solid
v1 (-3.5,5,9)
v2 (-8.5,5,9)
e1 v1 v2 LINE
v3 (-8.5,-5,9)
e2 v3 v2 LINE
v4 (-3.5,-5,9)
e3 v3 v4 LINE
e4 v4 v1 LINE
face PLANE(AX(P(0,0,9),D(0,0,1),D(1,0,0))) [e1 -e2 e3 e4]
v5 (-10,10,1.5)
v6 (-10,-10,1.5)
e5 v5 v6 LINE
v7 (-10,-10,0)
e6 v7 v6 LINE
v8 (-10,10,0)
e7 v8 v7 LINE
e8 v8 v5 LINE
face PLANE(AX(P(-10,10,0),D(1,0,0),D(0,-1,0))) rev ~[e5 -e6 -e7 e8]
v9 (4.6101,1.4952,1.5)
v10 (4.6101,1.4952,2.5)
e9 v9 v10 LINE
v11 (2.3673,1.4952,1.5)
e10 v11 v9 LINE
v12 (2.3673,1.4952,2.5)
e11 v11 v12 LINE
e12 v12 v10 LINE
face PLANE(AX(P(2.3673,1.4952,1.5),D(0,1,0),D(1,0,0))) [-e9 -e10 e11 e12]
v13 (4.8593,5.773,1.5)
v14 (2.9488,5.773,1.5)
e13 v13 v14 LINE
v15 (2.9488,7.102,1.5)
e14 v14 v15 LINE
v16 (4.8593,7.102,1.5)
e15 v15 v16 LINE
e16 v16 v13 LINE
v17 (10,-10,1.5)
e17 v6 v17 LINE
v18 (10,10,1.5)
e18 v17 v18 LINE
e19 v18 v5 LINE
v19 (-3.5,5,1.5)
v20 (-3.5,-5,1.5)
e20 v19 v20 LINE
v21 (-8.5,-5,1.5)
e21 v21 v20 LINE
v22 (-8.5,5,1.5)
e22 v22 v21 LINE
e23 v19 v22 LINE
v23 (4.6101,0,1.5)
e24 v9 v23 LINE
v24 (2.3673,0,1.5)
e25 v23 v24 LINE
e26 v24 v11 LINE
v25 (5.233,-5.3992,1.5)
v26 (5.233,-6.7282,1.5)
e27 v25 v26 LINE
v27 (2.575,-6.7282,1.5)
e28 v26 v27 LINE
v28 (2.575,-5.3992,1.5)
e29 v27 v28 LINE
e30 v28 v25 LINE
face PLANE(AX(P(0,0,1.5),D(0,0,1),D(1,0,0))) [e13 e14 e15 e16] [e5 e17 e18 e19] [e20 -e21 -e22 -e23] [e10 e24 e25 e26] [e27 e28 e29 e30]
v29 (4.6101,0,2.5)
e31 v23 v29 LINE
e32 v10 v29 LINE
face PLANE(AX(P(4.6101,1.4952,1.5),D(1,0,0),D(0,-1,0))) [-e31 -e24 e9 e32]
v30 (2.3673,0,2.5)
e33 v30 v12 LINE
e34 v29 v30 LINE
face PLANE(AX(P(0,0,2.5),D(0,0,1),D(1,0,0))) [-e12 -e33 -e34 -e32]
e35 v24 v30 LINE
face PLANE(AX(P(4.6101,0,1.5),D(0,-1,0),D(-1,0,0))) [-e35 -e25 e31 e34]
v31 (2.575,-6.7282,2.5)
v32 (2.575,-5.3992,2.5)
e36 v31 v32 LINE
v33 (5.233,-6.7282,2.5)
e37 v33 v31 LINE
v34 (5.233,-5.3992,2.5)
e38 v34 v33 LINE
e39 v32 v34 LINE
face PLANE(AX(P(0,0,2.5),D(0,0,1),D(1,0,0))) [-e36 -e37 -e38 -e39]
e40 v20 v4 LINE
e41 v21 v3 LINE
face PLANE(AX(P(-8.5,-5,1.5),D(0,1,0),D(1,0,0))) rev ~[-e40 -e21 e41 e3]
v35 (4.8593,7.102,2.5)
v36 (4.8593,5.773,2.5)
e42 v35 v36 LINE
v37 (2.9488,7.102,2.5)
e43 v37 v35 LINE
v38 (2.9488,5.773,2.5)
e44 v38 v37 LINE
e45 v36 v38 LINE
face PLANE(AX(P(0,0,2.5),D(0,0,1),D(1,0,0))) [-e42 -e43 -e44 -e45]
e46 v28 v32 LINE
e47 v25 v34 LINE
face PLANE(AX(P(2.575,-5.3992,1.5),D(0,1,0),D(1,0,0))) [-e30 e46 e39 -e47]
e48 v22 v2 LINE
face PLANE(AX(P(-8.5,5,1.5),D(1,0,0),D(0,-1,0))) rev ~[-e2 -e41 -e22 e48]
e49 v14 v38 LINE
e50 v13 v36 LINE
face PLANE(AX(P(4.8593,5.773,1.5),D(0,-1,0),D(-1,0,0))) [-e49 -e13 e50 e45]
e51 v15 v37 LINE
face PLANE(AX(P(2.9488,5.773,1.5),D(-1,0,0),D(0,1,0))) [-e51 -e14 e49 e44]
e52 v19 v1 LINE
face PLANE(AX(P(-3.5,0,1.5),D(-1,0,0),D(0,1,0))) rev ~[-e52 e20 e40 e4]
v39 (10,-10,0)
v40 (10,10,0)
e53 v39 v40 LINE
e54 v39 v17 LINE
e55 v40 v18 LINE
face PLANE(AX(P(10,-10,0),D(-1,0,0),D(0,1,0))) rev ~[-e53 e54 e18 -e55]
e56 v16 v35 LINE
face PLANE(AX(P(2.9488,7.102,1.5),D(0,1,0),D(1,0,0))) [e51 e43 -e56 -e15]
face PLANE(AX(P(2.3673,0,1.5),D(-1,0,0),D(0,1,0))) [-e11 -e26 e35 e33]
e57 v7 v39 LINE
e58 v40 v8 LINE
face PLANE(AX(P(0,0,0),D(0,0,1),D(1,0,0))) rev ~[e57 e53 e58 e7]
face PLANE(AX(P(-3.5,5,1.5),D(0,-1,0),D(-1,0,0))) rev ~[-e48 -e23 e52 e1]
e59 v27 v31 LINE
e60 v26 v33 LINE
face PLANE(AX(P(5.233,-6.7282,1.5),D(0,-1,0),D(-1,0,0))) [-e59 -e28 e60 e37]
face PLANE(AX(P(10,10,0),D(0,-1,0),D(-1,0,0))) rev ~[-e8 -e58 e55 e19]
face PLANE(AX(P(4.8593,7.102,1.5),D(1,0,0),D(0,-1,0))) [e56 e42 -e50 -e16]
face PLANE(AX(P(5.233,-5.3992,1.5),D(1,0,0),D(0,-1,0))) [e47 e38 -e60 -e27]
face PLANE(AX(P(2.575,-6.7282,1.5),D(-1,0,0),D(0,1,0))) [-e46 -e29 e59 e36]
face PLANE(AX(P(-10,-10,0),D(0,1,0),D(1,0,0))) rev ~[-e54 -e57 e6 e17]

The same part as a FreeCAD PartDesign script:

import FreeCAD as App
import Part
import Sketcher

V = App.Vector

doc = App.newDocument("Part")
body = doc.addObject("PartDesign::Body", "Body")

# Sketch on XY plane
sketch1 = body.newObject("Sketcher::SketchObject", "Sketch")
sketch1.AttachmentSupport = (doc.getObject("XY_Plane"), [""])
sketch1.MapMode = "FlatFace"
sketch1.addGeometry(Part.LineSegment(V(-10, 10, 0), V(-10, -10, 0)), False)
sketch1.addGeometry(Part.LineSegment(V(-10, -10, 0), V(10, -10, 0)), False)
sketch1.addGeometry(Part.LineSegment(V(10, -10, 0), V(10, 10, 0)), False)
sketch1.addGeometry(Part.LineSegment(V(10, 10, 0), V(-10, 10, 0)), False)
sketch1.addConstraint(Sketcher.Constraint("Coincident", 0, 2, 1, 1))
sketch1.addConstraint(Sketcher.Constraint("Coincident", 1, 2, 2, 1))
sketch1.addConstraint(Sketcher.Constraint("Coincident", 2, 2, 3, 1))
sketch1.addConstraint(Sketcher.Constraint("Coincident", 3, 2, 0, 1))
sketch1.addConstraint(Sketcher.Constraint("Vertical", 0))
sketch1.addConstraint(Sketcher.Constraint("Horizontal", 1))
sketch1.addConstraint(Sketcher.Constraint("Vertical", 2))
sketch1.addConstraint(Sketcher.Constraint("Horizontal", 3))
sketch1.addConstraint(Sketcher.Constraint("Symmetric", 0, 2, 2, 2, -1, 1))
sketch1.addConstraint(Sketcher.Constraint("Equal", 3, 0))
sketch1.addConstraint(Sketcher.Constraint("DistanceX", 1, 1, 1, 2, 20.0))
pad1 = body.newObject("PartDesign::Pad", "Pad")
pad1.Profile = sketch1
pad1.Length = 1.5

# Sketch on XY plane
sketch2 = body.newObject("Sketcher::SketchObject", "Sketch001")
sketch2.AttachmentSupport = (doc.getObject("XY_Plane"), [""])
sketch2.MapMode = "FlatFace"
sketch2.AttachmentOffset = App.Placement(V(0, 0, 1.5), App.Rotation())
sketch2.addGeometry(Part.LineSegment(V(-8.5, 5, 0), V(-8.5, -5, 0)), False)
sketch2.addGeometry(Part.LineSegment(V(-8.5, -5, 0), V(-3.5, -5, 0)), False)
sketch2.addGeometry(Part.LineSegment(V(-3.5, -5, 0), V(-3.5, 5, 0)), False)
sketch2.addGeometry(Part.LineSegment(V(-3.5, 5, 0), V(-8.5, 5, 0)), False)
sketch2.addConstraint(Sketcher.Constraint("Coincident", 0, 2, 1, 1))
sketch2.addConstraint(Sketcher.Constraint("Coincident", 1, 2, 2, 1))
sketch2.addConstraint(Sketcher.Constraint("Coincident", 2, 2, 3, 1))
sketch2.addConstraint(Sketcher.Constraint("Coincident", 3, 2, 0, 1))
sketch2.addConstraint(Sketcher.Constraint("Vertical", 0))
sketch2.addConstraint(Sketcher.Constraint("Horizontal", 1))
sketch2.addConstraint(Sketcher.Constraint("Vertical", 2))
sketch2.addConstraint(Sketcher.Constraint("Horizontal", 3))
sketch2.addConstraint(Sketcher.Constraint("DistanceX", 1, 1, 1, 2, 5.0))
sketch2.addConstraint(Sketcher.Constraint("DistanceY", 0, 2, 0, 1, 10.0))
sketch2.addConstraint(Sketcher.Constraint("DistanceY", 0, 2, -1, 1, 5.0))
sketch2.addConstraint(Sketcher.Constraint("DistanceX", 0, 2, -1, 1, 8.5))
pad2 = body.newObject("PartDesign::Pad", "Pad001")
pad2.Profile = sketch2
pad2.Length = 7.5

# Sketch on XY plane
sketch3 = body.newObject("Sketcher::SketchObject", "Sketch002")
sketch3.AttachmentSupport = (doc.getObject("XY_Plane"), [""])
sketch3.MapMode = "FlatFace"
sketch3.AttachmentOffset = App.Placement(V(0, 0, 1.5), App.Rotation())
sketch3.addGeometry(Part.LineSegment(V(4.8593, 7.102, 0), V(2.9488, 7.102, 0)), False)
sketch3.addGeometry(Part.LineSegment(V(2.9488, 7.102, 0), V(2.9488, 5.773, 0)), False)
sketch3.addGeometry(Part.LineSegment(V(2.9488, 5.773, 0), V(4.8593, 5.773, 0)), False)
sketch3.addGeometry(Part.LineSegment(V(4.8593, 5.773, 0), V(4.8593, 7.102, 0)), False)
sketch3.addGeometry(Part.LineSegment(V(4.6101, 1.4952, 0), V(2.3673, 1.4952, 0)), False)
sketch3.addGeometry(Part.LineSegment(V(2.3673, 1.4952, 0), V(2.3673, 0, 0)), False)
sketch3.addGeometry(Part.LineSegment(V(2.3673, 0, 0), V(4.6101, 0, 0)), False)
sketch3.addGeometry(Part.LineSegment(V(4.6101, 0, 0), V(4.6101, 1.4952, 0)), False)
sketch3.addGeometry(Part.LineSegment(V(5.233, -5.3992, 0), V(2.575, -5.3992, 0)), False)
sketch3.addGeometry(Part.LineSegment(V(2.575, -5.3992, 0), V(2.575, -6.7282, 0)), False)
sketch3.addGeometry(Part.LineSegment(V(2.575, -6.7282, 0), V(5.233, -6.7282, 0)), False)
sketch3.addGeometry(Part.LineSegment(V(5.233, -6.7282, 0), V(5.233, -5.3992, 0)), False)
sketch3.addConstraint(Sketcher.Constraint("Coincident", 0, 2, 1, 1))
sketch3.addConstraint(Sketcher.Constraint("Coincident", 1, 2, 2, 1))
sketch3.addConstraint(Sketcher.Constraint("Coincident", 2, 2, 3, 1))
sketch3.addConstraint(Sketcher.Constraint("Coincident", 3, 2, 0, 1))
sketch3.addConstraint(Sketcher.Constraint("Coincident", 4, 2, 5, 1))
sketch3.addConstraint(Sketcher.Constraint("Coincident", 5, 2, 6, 1))
sketch3.addConstraint(Sketcher.Constraint("Coincident", 6, 2, 7, 1))
sketch3.addConstraint(Sketcher.Constraint("Coincident", 7, 2, 4, 1))
sketch3.addConstraint(Sketcher.Constraint("Coincident", 8, 2, 9, 1))
sketch3.addConstraint(Sketcher.Constraint("Coincident", 9, 2, 10, 1))
sketch3.addConstraint(Sketcher.Constraint("Coincident", 10, 2, 11, 1))
sketch3.addConstraint(Sketcher.Constraint("Coincident", 11, 2, 8, 1))
sketch3.addConstraint(Sketcher.Constraint("Horizontal", 0))
sketch3.addConstraint(Sketcher.Constraint("Vertical", 1))
sketch3.addConstraint(Sketcher.Constraint("Horizontal", 2))
sketch3.addConstraint(Sketcher.Constraint("Vertical", 3))
sketch3.addConstraint(Sketcher.Constraint("Horizontal", 4))
sketch3.addConstraint(Sketcher.Constraint("Vertical", 5))
sketch3.addConstraint(Sketcher.Constraint("Horizontal", 6))
sketch3.addConstraint(Sketcher.Constraint("Vertical", 7))
sketch3.addConstraint(Sketcher.Constraint("Horizontal", 8))
sketch3.addConstraint(Sketcher.Constraint("Vertical", 9))
sketch3.addConstraint(Sketcher.Constraint("Horizontal", 10))
sketch3.addConstraint(Sketcher.Constraint("Vertical", 11))
sketch3.addConstraint(Sketcher.Constraint("PointOnObject", 5, 2, -1))
sketch3.addConstraint(Sketcher.Constraint("Equal", 3, 9))
sketch3.addConstraint(Sketcher.Constraint("DistanceX", 8, 2, 8, 1, 2.658))
sketch3.addConstraint(Sketcher.Constraint("DistanceY", 1, 2, 1, 1, 1.329))
sketch3.addConstraint(Sketcher.Constraint("DistanceX", -1, 1, 6, 2, 4.61))
sketch3.addConstraint(Sketcher.Constraint("DistanceX", 0, 2, 0, 1, 1.9105))
sketch3.addConstraint(Sketcher.Constraint("DistanceX", 4, 2, 4, 1, 2.2428))
sketch3.addConstraint(Sketcher.Constraint("DistanceY", 5, 2, 5, 1, 1.4952))
sketch3.addConstraint(Sketcher.Constraint("DistanceY", -1, 1, 0, 2, 7.102))
sketch3.addConstraint(Sketcher.Constraint("DistanceX", -1, 1, 8, 2, 2.575))
sketch3.addConstraint(Sketcher.Constraint("DistanceX", 4, 2, 2, 2, 2.492))
sketch3.addConstraint(Sketcher.Constraint("DistanceY", 8, 2, -1, 1, 5.3992))
pad3 = body.newObject("PartDesign::Pad", "Pad002")
pad3.Profile = sketch3
pad3.Length = 1

doc.recompute()
